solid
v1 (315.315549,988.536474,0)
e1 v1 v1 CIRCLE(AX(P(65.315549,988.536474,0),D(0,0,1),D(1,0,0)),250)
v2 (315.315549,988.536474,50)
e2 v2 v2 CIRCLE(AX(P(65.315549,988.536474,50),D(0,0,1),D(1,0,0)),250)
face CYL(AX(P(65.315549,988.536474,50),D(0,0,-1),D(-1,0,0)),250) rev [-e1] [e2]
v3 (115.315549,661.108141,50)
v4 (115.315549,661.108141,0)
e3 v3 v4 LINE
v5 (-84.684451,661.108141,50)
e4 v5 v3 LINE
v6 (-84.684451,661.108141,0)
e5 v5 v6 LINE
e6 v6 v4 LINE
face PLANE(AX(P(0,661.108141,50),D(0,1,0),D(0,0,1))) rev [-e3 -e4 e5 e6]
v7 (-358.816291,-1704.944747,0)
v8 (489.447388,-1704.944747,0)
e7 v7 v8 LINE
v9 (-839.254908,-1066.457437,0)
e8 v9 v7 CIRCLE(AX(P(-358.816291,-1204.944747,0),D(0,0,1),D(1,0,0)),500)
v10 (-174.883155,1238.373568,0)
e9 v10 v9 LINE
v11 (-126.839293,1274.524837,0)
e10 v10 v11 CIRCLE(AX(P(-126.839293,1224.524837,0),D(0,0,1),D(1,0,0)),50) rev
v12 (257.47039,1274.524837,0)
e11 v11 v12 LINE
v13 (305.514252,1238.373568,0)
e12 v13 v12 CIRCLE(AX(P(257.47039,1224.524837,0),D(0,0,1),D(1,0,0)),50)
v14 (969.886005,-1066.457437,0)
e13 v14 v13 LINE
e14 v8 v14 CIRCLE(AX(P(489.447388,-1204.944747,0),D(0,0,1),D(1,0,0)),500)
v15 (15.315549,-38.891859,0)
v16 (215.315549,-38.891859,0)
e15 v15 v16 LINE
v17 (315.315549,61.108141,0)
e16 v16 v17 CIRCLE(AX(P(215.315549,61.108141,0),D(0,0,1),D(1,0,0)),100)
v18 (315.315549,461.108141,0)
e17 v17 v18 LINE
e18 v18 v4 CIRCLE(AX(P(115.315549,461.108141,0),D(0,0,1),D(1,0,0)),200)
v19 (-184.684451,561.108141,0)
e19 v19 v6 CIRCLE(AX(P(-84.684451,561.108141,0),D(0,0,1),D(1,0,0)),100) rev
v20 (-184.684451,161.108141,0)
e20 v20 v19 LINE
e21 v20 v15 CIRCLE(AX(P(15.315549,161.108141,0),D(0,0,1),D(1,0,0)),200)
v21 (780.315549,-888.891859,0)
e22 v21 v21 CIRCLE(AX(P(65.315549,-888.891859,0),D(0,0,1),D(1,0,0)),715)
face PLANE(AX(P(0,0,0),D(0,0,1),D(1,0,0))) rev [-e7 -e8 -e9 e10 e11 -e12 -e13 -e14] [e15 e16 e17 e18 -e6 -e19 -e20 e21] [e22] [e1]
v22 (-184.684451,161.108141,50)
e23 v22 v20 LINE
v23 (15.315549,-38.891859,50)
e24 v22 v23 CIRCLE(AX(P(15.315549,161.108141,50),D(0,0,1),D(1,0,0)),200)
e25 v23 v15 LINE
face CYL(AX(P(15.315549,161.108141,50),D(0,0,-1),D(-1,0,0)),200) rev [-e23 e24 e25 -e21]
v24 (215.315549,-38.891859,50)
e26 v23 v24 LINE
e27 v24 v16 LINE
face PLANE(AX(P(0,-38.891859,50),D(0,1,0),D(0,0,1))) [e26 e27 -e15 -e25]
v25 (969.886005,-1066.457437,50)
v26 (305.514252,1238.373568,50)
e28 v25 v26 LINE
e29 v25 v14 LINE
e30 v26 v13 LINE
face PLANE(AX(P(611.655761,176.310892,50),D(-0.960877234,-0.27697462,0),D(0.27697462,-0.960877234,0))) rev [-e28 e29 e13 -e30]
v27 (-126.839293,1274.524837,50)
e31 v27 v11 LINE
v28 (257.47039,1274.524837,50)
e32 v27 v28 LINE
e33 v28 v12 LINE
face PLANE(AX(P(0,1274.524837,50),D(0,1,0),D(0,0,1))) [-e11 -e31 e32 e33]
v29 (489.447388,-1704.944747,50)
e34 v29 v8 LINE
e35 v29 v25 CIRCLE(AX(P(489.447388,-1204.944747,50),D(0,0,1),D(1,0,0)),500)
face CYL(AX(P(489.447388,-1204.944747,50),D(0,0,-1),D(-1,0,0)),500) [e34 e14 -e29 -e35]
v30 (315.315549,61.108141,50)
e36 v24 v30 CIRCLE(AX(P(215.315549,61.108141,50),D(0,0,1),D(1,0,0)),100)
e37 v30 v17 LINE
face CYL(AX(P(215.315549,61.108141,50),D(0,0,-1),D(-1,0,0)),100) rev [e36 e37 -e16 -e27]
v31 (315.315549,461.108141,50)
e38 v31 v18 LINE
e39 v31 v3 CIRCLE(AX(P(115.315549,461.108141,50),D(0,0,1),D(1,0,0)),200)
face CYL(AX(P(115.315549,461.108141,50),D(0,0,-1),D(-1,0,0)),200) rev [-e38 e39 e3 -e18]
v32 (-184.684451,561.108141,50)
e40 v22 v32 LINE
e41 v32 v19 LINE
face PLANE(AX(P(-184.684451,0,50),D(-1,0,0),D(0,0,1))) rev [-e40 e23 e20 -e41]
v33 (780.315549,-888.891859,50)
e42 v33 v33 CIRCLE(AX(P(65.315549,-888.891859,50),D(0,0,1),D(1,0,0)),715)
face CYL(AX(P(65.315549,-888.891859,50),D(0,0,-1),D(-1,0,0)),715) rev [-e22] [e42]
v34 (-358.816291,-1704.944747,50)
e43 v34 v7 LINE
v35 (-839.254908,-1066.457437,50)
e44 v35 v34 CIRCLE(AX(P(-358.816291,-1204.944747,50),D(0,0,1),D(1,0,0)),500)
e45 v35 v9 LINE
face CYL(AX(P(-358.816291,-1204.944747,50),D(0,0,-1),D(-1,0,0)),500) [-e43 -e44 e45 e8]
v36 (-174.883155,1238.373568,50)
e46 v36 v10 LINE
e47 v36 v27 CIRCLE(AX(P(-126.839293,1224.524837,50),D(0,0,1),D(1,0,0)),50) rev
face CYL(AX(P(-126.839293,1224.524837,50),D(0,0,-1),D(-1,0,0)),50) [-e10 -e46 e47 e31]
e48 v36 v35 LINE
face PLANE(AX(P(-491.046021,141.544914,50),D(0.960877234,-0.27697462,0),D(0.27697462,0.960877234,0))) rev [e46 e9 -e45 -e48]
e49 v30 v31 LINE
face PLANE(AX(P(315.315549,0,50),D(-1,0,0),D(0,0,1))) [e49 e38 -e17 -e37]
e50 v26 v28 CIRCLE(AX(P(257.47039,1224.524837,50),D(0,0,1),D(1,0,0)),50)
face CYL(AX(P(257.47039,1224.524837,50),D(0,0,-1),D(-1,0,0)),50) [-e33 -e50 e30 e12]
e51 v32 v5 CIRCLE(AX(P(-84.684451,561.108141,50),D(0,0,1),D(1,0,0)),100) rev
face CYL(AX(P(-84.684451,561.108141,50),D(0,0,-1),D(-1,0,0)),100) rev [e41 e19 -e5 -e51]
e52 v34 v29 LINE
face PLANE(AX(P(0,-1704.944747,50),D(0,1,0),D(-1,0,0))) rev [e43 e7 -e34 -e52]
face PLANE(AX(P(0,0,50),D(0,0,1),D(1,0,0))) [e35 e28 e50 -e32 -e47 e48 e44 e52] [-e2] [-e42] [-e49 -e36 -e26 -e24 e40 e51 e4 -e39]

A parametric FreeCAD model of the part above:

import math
import FreeCAD as App
import Part
import Sketcher
Q = App.Units.Quantity

doc = App.newDocument("Part")
body = doc.addObject("PartDesign::Body", "Body")

# Sketch on XY plane
sketch1 = body.newObject("Sketcher::SketchObject", "Sketch")
sketch1.AttachmentSupport = (doc.getObject("XY_Plane"), [""])
sketch1.MapMode = "FlatFace"
sketch1.addGeometry([
    Part.LineSegment(App.Vector(969.886005, -1066.457437, 0), App.Vector(305.514252, 1238.373568, 0)),  # 0
    Part.ArcOfCircle(Part.Circle(App.Vector(257.47039, 1224.524837, 0), App.Vector(0, 0, 1), 50), math.radians(16.079723), math.radians(90)),  # 1
    Part.LineSegment(App.Vector(257.47039, 1274.524837, 0), App.Vector(-126.839293, 1274.524837, 0)),  # 2
    Part.ArcOfCircle(Part.Circle(App.Vector(-126.839293, 1224.524837, 0), App.Vector(0, 0, 1), 50), math.radians(90), math.radians(163.920277)),  # 3
    Part.LineSegment(App.Vector(-174.883155, 1238.373568, 0), App.Vector(-839.254908, -1066.457437, 0)),  # 4
    Part.ArcOfCircle(Part.Circle(App.Vector(-358.816291, -1204.944747, 0), App.Vector(0, 0, 1), 500), math.radians(163.920277), math.radians(270)),  # 5
    Part.LineSegment(App.Vector(-358.816291, -1704.944747, 0), App.Vector(489.447388, -1704.944747, 0)),  # 6
    Part.ArcOfCircle(Part.Circle(App.Vector(489.447388, -1204.944747, 0), App.Vector(0, 0, 1), 500), math.radians(-90), math.radians(16.079723)),  # 7
    Part.Circle(App.Vector(65.315549, -888.891859, 0), App.Vector(0, 0, 1), 715),  # 8
    Part.LineSegment(App.Vector(215.315549, -38.891859, 0), App.Vector(15.315549, -38.891859, 0)),  # 9
    Part.ArcOfCircle(Part.Circle(App.Vector(15.315549, 161.108141, 0), App.Vector(0, 0, 1), 200), math.radians(-180), math.radians(-90)),  # 10
    Part.LineSegment(App.Vector(-184.684451, 161.108141, 0), App.Vector(-184.684451, 561.108141, 0)),  # 11
    Part.ArcOfCircle(Part.Circle(App.Vector(-84.684451, 561.108141, 0), App.Vector(0, 0, 1), 100), math.radians(90), math.radians(180)),  # 12
    Part.LineSegment(App.Vector(-84.684451, 661.108141, 0), App.Vector(115.315549, 661.108141, 0)),  # 13
    Part.ArcOfCircle(Part.Circle(App.Vector(115.315549, 461.108141, 0), App.Vector(0, 0, 1), 200), math.radians(0), math.radians(90)),  # 14
    Part.LineSegment(App.Vector(315.315549, 461.108141, 0), App.Vector(315.315549, 61.108141, 0)),  # 15
    Part.ArcOfCircle(Part.Circle(App.Vector(215.315549, 61.108141, 0), App.Vector(0, 0, 1), 100), math.radians(-90), math.radians(0)),  # 16
    Part.Circle(App.Vector(65.315549, 988.536474, 0), App.Vector(0, 0, 1), 250),  # 17
], False)
sketch1.addConstraint([
    Sketcher.Constraint("Tangent", 0, 2, 1, 1),
    Sketcher.Constraint("Tangent", 1, 2, 2, 1),
    Sketcher.Constraint("Tangent", 2, 2, 3, 1),
    Sketcher.Constraint("Tangent", 3, 2, 4, 1),
    Sketcher.Constraint("Tangent", 4, 2, 5, 1),
    Sketcher.Constraint("Tangent", 5, 2, 6, 1),
    Sketcher.Constraint("Tangent", 6, 2, 7, 1),
    Sketcher.Constraint("Tangent", 7, 2, 0, 1),
    Sketcher.Constraint("Tangent", 9, 2, 10, 2),
    Sketcher.Constraint("Tangent", 10, 1, 11, 1),
    Sketcher.Constraint("Tangent", 11, 2, 12, 2),
    Sketcher.Constraint("Tangent", 12, 1, 13, 1),
    Sketcher.Constraint("Tangent", 13, 2, 14, 2),
    Sketcher.Constraint("Tangent", 14, 1, 15, 1),
    Sketcher.Constraint("Tangent", 15, 2, 16, 2),
    Sketcher.Constraint("Tangent", 16, 1, 9, 1),
    Sketcher.Constraint("Horizontal", 2),
    Sketcher.Constraint("Horizontal", 6),
    Sketcher.Constraint("Horizontal", 9),
    Sketcher.Constraint("Vertical", 11),
    Sketcher.Constraint("Horizontal", 13),
    Sketcher.Constraint("Vertical", 15),
    Sketcher.Constraint("Equal", 1, 3),
    Sketcher.Constraint("Equal", 5, 7),
    Sketcher.Constraint("Equal", 10, 14),
    Sketcher.Constraint("Equal", 12, 16),
    Sketcher.Constraint("Vertical", 8, 3, 17, 3),
    Sketcher.Constraint("Equal", 0, 4),
    Sketcher.Constraint("Diameter", 8, Q("1430 mm")),
    Sketcher.Constraint("Diameter", 17, Q("500 mm")),
    Sketcher.Constraint("Radius", 1, Q("50 mm")),
    Sketcher.Constraint("Radius", 5, Q("500 mm")),
    Sketcher.Constraint("Radius", 10, Q("200 mm")),
    Sketcher.Constraint("Radius", 12, Q("100 mm")),
    Sketcher.Constraint("DistanceX", 9, 2, 9, 1, Q("200 mm")),
    Sketcher.Constraint("DistanceY", 11, 1, 11, 2, Q("400 mm")),
    Sketcher.Constraint("DistanceX", 10, 3, 8, 3, Q("50 mm")),
    Sketcher.Constraint("DistanceY", 8, 3, 10, 3, Q("1050 mm")),
    Sketcher.Constraint("DistanceX", 6, 1, 6, 2, Q("848.263679 mm")),
    Sketcher.Constraint("DistanceX", 2, 2, 2, 1, Q("384.309683 mm")),
    Sketcher.Constraint("DistanceX", -1, 1, 1, 3, Q("257.47039 mm")),
    Sketcher.Constraint("DistanceX", -1, 1, 8, 3, Q("65.315549 mm")),
    Sketcher.Constraint("DistanceY", 8, 3, -1, 1, Q("888.891859 mm")),
    Sketcher.Constraint("DistanceY", -1, 1, 0, 2, Q("1238.373568 mm")),
    Sketcher.Constraint("DistanceY", 7, 3, 8, 3, Q("316.052888 mm")),
    Sketcher.Constraint("DistanceY", -1, 1, 17, 3, Q("988.536474 mm")),
])
pad1 = body.newObject("PartDesign::Pad", "Pad")
pad1.Profile = sketch1
pad1.Length = 50

doc.recompute()
